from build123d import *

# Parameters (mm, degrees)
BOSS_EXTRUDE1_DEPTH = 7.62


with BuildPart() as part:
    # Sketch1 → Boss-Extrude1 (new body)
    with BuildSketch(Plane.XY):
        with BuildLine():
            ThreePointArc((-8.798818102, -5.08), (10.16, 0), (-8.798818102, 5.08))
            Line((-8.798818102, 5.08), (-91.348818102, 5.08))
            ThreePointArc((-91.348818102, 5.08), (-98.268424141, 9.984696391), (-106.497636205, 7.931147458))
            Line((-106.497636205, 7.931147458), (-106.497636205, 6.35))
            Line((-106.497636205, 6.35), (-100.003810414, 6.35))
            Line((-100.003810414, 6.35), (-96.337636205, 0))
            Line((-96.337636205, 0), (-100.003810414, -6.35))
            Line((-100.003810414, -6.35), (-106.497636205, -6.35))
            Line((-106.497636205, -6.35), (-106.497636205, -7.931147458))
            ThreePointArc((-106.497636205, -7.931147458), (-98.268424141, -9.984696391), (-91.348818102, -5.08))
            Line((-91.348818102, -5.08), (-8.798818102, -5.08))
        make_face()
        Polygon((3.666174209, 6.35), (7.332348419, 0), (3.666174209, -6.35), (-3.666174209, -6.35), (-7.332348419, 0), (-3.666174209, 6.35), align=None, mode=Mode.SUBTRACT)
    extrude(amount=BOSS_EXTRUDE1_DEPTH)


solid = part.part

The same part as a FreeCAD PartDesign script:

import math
import FreeCAD as App
import Part
import Sketcher
from FreeCAD import Vector
Q = App.Units.Quantity

doc = App.newDocument("Part")
body = doc.addObject("PartDesign::Body", "Body")

# Sketch on XY plane
sketch1 = body.newObject("Sketcher::SketchObject", "Sketch")
sketch1.AttachmentSupport = (doc.getObject("XY_Plane"), [""])
sketch1.MapMode = "FlatFace"
sketch1.addGeometry([
    Part.ArcOfCircle(Part.Circle(Vector(0, 0, 0), Vector(0, 0, 1), 10.2), math.radians(-150), math.radians(150)),  # 0
    Part.LineSegment(Vector(-8.8, 5.1, 0), Vector(-91.3, 5.1, 0)),  # 1
    Part.ArcOfCircle(Part.Circle(Vector(-100.1, 0, 0), Vector(0, 0, 1), 10.2), math.radians(30), math.radians(129)),  # 2
    Part.LineSegment(Vector(-106.5, 7.9, 0), Vector(-106.5, 6.3, 0)),  # 3
    Part.LineSegment(Vector(-106.5, 6.3, 0), Vector(-100, 6.3, 0)),  # 4
    Part.LineSegment(Vector(-100, 6.3, 0), Vector(-96.3, 0, 0)),  # 5
    Part.LineSegment(Vector(-96.3, 0, 0), Vector(-100, -6.3, 0)),  # 6
    Part.LineSegment(Vector(-100, -6.3, 0), Vector(-106.5, -6.3, 0)),  # 7
    Part.LineSegment(Vector(-106.5, -6.3, 0), Vector(-106.5, -7.9, 0)),  # 8
    Part.ArcOfCircle(Part.Circle(Vector(-100.1, 0, 0), Vector(0, 0, 1), 10.2), math.radians(-129), math.radians(-30)),  # 9
    Part.LineSegment(Vector(-91.3, -5.1, 0), Vector(-8.8, -5.1, 0)),  # 10
    Part.LineSegment(Vector(-3.7, 6.3, 0), Vector(3.7, 6.3, 0)),  # 11
    Part.LineSegment(Vector(3.7, 6.3, 0), Vector(7.3, 0, 0)),  # 12
    Part.LineSegment(Vector(7.3, 0, 0), Vector(3.7, -6.3, 0)),  # 13
    Part.LineSegment(Vector(3.7, -6.3, 0), Vector(-3.7, -6.3, 0)),  # 14
    Part.LineSegment(Vector(-3.7, -6.3, 0), Vector(-7.3, 0, 0)),  # 15
    Part.LineSegment(Vector(-7.3, 0, 0), Vector(-3.7, 6.3, 0)),  # 16
], False)
sketch1.addConstraint([
    Sketcher.Constraint("Coincident", 0, 2, 1, 1),
    Sketcher.Constraint("Coincident", 1, 2, 2, 1),
    Sketcher.Constraint("Coincident", 2, 2, 3, 1),
    Sketcher.Constraint("Coincident", 3, 2, 4, 1),
    Sketcher.Constraint("Coincident", 4, 2, 5, 1),
    Sketcher.Constraint("Coincident", 5, 2, 6, 1),
    Sketcher.Constraint("Coincident", 6, 2, 7, 1),
    Sketcher.Constraint("Coincident", 7, 2, 8, 1),
    Sketcher.Constraint("Coincident", 8, 2, 9, 1),
    Sketcher.Constraint("Coincident", 9, 2, 10, 1),
    Sketcher.Constraint("Coincident", 10, 2, 0, 1),
    Sketcher.Constraint("Coincident", 11, 2, 12, 1),
    Sketcher.Constraint("Coincident", 12, 2, 13, 1),
    Sketcher.Constraint("Coincident", 13, 2, 14, 1),
    Sketcher.Constraint("Coincident", 14, 2, 15, 1),
    Sketcher.Constraint("Coincident", 15, 2, 16, 1),
    Sketcher.Constraint("Coincident", 16, 2, 11, 1),
    Sketcher.Constraint("Horizontal", 1),
    Sketcher.Constraint("Vertical", 3),
    Sketcher.Constraint("Horizontal", 4),
    Sketcher.Constraint("Horizontal", 7),
    Sketcher.Constraint("Vertical", 8),
    Sketcher.Constraint("Horizontal", 10),
    Sketcher.Constraint("Horizontal", 11),
    Sketcher.Constraint("Horizontal", 14),
    Sketcher.Constraint("Coincident", 0, 3, -1, 1),
    Sketcher.Constraint("Coincident", 9, 3, 2, 3),
    Sketcher.Constraint("Equal", 0, 2),
    Sketcher.Constraint("Equal", 2, 9),
    Sketcher.Constraint("Symmetric", 11, 2, 14, 2, -1, 1),
    Sketcher.Constraint("Symmetric", 12, 2, 15, 2, -1, 1),
    Sketcher.Constraint("Symmetric", 4, 2, 6, 2, -1),
    Sketcher.Constraint("Symmetric", 2, 2, 8, 2, -1),
    Sketcher.Constraint("PointOnObject", 5, 2, -1),
    Sketcher.Constraint("PointOnObject", 12, 2, -1),
    Sketcher.Constraint("Parallel", 5, 12),
    Sketcher.Constraint("Parallel", 6, 13),
    Sketcher.Constraint("Parallel", 13, 16),
    Sketcher.Constraint("Horizontal", 4, 2, 11, 2),
    Sketcher.Constraint("Vertical", 1, 2, 9, 2),
    Sketcher.Constraint("Radius", 0, Q("0.4 in")),
    Sketcher.Constraint("Angle", 5, Q("-60 deg")),
    Sketcher.Constraint("DistanceX", 1, 2, 1, 1, Q("3.25 in")),
    Sketcher.Constraint("DistanceY", -1, 1, 0, 2, Q("0.2 in")),
    Sketcher.Constraint("DistanceX", 3, 2, 5, 2, Q("0.4 in")),
    Sketcher.Constraint("DistanceY", 6, 2, 4, 2, Q("0.5 in")),
    Sketcher.Constraint("DistanceX", 2, 2, 2, 3, Q("0.25 in")),
    Sketcher.Constraint("DistanceX", 11, 1, 11, 2, 7.332348),
])
pad1 = body.newObject("PartDesign::Pad", "Pad")
pad1.Profile = sketch1
pad1.Length = Q("0.3 in")

doc.recompute()
